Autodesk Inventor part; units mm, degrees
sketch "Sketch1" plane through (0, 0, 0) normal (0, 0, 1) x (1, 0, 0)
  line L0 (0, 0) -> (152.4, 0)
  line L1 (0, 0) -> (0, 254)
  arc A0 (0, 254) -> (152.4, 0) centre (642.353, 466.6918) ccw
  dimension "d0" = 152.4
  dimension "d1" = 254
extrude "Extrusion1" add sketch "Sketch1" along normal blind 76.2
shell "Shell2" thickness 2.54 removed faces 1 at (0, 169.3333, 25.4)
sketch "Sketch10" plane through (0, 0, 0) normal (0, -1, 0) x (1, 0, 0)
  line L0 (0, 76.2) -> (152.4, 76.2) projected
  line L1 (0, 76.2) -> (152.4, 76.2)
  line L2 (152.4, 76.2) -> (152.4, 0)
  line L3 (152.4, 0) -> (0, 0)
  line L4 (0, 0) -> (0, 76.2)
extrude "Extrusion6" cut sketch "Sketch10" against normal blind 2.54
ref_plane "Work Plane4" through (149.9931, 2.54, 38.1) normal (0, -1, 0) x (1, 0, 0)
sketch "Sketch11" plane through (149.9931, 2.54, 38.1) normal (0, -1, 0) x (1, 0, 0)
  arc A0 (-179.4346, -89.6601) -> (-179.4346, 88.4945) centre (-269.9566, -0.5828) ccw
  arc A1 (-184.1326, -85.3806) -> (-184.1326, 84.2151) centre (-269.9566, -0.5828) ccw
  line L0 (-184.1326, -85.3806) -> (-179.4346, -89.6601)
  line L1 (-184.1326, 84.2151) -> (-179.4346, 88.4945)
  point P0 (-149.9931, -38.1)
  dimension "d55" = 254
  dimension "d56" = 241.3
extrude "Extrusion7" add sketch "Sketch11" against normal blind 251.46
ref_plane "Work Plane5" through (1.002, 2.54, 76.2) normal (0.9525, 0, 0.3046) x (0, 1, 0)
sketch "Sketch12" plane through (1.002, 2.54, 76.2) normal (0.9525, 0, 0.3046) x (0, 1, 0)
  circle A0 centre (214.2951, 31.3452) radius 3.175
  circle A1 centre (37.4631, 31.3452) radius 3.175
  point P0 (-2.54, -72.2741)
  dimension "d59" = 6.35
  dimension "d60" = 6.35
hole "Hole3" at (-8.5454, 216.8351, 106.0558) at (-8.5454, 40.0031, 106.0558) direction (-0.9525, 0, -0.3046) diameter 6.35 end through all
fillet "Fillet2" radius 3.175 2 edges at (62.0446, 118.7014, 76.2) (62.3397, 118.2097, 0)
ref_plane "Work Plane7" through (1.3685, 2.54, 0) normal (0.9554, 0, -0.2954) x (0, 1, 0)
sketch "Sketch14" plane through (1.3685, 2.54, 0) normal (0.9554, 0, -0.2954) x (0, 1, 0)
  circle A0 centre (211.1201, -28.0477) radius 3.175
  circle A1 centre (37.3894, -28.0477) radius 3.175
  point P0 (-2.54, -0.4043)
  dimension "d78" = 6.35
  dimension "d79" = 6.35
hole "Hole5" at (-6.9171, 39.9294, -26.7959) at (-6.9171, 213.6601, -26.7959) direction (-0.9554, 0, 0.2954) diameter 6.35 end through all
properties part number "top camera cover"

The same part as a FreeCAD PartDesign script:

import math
import FreeCAD as App
import Part
import Sketcher

V = App.Vector
Q = App.Units.Quantity


def edges_at(feature, points):
    """Names of the edges that pass closest to the given points."""
    edges = feature.Shape.Edges
    near = lambda p: min(range(len(edges)), key=lambda i: edges[i].distToShape(Part.Vertex(*p))[0])
    return sorted({f"Edge{near(p) + 1}" for p in points})


def faces_at(feature, points):
    """Names of the faces that lie closest to the given points."""
    faces = feature.Shape.Faces
    near = lambda p: min(range(len(faces)), key=lambda i: faces[i].distToShape(Part.Vertex(*p))[0])
    return sorted({f"Face{near(p) + 1}" for p in points})


def add_polygon(sketch, points):
    """Adds a closed chain of lines whose ends are joined by coincident constraints."""
    first, n = sketch.GeometryCount, len(points)
    for a, b in zip(points, points[1:] + points[:1]):
        sketch.addGeometry(Part.LineSegment(App.Vector(*a, 0), App.Vector(*b, 0)), False)
    for i in range(n):
        sketch.addConstraint(Sketcher.Constraint("Coincident", first + i, 2, first + (i + 1) % n, 1))

doc = App.newDocument("Part")
params = doc.addObject("Spreadsheet::Sheet", "Params")
for row, (alias, value) in enumerate([
    ("sketch1_width", "6 in"),
    ("sketch1_height", "10 in"),
    ("pad1_length", "3 in"),
    ("thickness_wall", "0.1 in"),
    ("sketch2_width", "6 in"),
    ("sketch2_height", "3 in"),
    ("pocket1_length", "0.1 in"),
    ("sketch3_radius", "5 in"),
    ("sketch3_radius2", "4.75 in"),
    ("pad2_length", "9.9 in"),
    ("sketch4_diameter", "0.25 in"),
    ("hole_diameter", "0.25 in"),
    ("fillet_radius", "0.125 in"),
    ("sketch5_diameter", "0.25 in"),
    ("hole2_diameter", "0.25 in"),
], start=1):
    params.set(f"A{row}", alias)
    params.set(f"B{row}", "=" + value)
    params.setAlias(f"B{row}", alias)

body = doc.addObject("PartDesign::Body", "Body")

sketch1 = doc.addObject("Sketcher::SketchObject", "Sketch")
body.addObject(sketch1)
sketch1.AttachmentSupport = (doc.XY_Plane, [""])
sketch1.MapMode = "FlatFace"
sketch1.addGeometry([
    Part.LineSegment(V(0, 254, 0), V(0, 0, 0)),
    Part.LineSegment(V(0, 0, 0), V(152, 0, 0)),
    Part.ArcOfCircle(Part.Circle(V(642, 467, 0), V(0, 0, 1), 677), math.radians(-162), math.radians(-136)),
], False)
sketch1.addConstraint([
    Sketcher.Constraint("Coincident", 0, 2, 1, 1),
    Sketcher.Constraint("Coincident", 1, 2, 2, 2),
    Sketcher.Constraint("Coincident", 2, 1, 0, 1),
    Sketcher.Constraint("Vertical", 0),
    Sketcher.Constraint("Horizontal", 1),
    Sketcher.Constraint("Coincident", 0, 2, -1, 1),
    Sketcher.Constraint("DistanceX", 1, 1, 1, 2, Q("6 in")),
    Sketcher.Constraint("DistanceY", 0, 2, 0, 1, Q("10 in")),
    Sketcher.Constraint("Radius", 2, Q("676.65 mm")),
])
sketch1.setExpression("Constraints[6]", "Params.sketch1_width")
sketch1.setExpression("Constraints[7]", "Params.sketch1_height")
pad1 = doc.addObject("PartDesign::Pad", "Pad")
body.addObject(pad1)
pad1.Profile = sketch1
pad1.setExpression("Length", "Params.pad1_length")
doc.recompute()

thickness = doc.addObject("PartDesign::Thickness", "Thickness")
body.addObject(thickness)
thickness.Base = (pad1, faces_at(pad1, [(0, 169.333, 25.4)]))
thickness.setExpression("Value", "Params.thickness_wall")
thickness.Reversed = True
thickness.Join = "Intersection"

sketch2 = doc.addObject("Sketcher::SketchObject", "Sketch001")
body.addObject(sketch2)
sketch2.AttachmentSupport = (doc.XZ_Plane, [""])
sketch2.MapMode = "FlatFace"
add_polygon(sketch2, [(152, 76), (0, 76), (0, 0), (152, 0)])
sketch2.addConstraint([
    Sketcher.Constraint("Horizontal", 0),
    Sketcher.Constraint("Vertical", 1),
    Sketcher.Constraint("Horizontal", 2),
    Sketcher.Constraint("Vertical", 3),
    Sketcher.Constraint("Coincident", 1, 2, -1, 1),
    Sketcher.Constraint("DistanceX", 0, 2, 0, 1, Q("6 in")),
    Sketcher.Constraint("DistanceY", 1, 2, 1, 1, Q("3 in")),
])
sketch2.setExpression("Constraints[9]", "Params.sketch2_width")
sketch2.setExpression("Constraints[10]", "Params.sketch2_height")
pocket1 = doc.addObject("PartDesign::Pocket", "Pocket")
body.addObject(pocket1)
pocket1.Profile = sketch2
pocket1.setExpression("Length", "Params.pocket1_length")

sketch3 = doc.addObject("Sketcher::SketchObject", "Sketch002")
body.addObject(sketch3)
sketch3.AttachmentSupport = (doc.XZ_Plane, [""])
sketch3.MapMode = "FlatFace"
sketch3.AttachmentOffset = App.Placement(V(0, 0, -0.1 * 25.4), App.Rotation())
sketch3.addGeometry([
    Part.LineSegment(V(-34, -47, 0), V(-29, -52, 0)),
    Part.ArcOfCircle(Part.Circle(V(-120, 38, 0), V(0, 0, 1), 127), math.radians(-45), math.radians(45)),
    Part.LineSegment(V(-29, 127, 0), V(-34, 122, 0)),
    Part.ArcOfCircle(Part.Circle(V(-120, 38, 0), V(0, 0, 1), 121), math.radians(-45), math.radians(45)),
], False)
sketch3.addConstraint([
    Sketcher.Constraint("Coincident", 0, 2, 1, 1),
    Sketcher.Constraint("Coincident", 1, 2, 2, 1),
    Sketcher.Constraint("Coincident", 2, 2, 3, 2),
    Sketcher.Constraint("Coincident", 3, 1, 0, 1),
    Sketcher.Constraint("Coincident", 3, 3, 1, 3),
    Sketcher.Constraint("Vertical", 0, 2, 1, 2),
    Sketcher.Constraint("Vertical", 2, 2, 3, 1),
    Sketcher.Constraint("Radius", 1, Q("5 in")),
    Sketcher.Constraint("Radius", 3, Q("4.75 in")),
    Sketcher.Constraint("Angle", 0, Q("-42.331 deg")),
    Sketcher.Constraint("DistanceY", 3, 1, 2, 2, Q("6.677 in")),
    Sketcher.Constraint("DistanceX", 1, 3, -1, 1, Q("119.9635 mm")),
    Sketcher.Constraint("DistanceY", -1, 1, 1, 3, Q("37.5172 mm")),
])
sketch3.setExpression("Constraints[7]", "Params.sketch3_radius")
sketch3.setExpression("Constraints[8]", "Params.sketch3_radius2")
pad2 = doc.addObject("PartDesign::Pad", "Pad001")
body.addObject(pad2)
pad2.Profile = sketch3
pad2.setExpression("Length", "Params.pad2_length")
pad2.Reversed = True

sketch4 = doc.addObject("Sketcher::SketchObject", "Sketch003")
body.addObject(sketch4)
sketch4.Placement = App.Placement(V(23.0164, 0, 7.360415), App.Rotation(V(0.304594303, 0, -0.952482184), V(0, 1, 0), V(0.952482184, 0, 0.304594303), "ZXY"))
sketch4.addGeometry([
    Part.Circle(V(-103.6, 216.8, 0), V(0, 0, 1), 3.2),
    Part.Circle(V(-103.6, 40, 0), V(0, 0, 1), 3.2),
], False)
sketch4.addConstraint([
    Sketcher.Constraint("Equal", 0, 1),
    Sketcher.Constraint("Vertical", 0, 3, 1, 3),
    Sketcher.Constraint("Diameter", 0, Q("0.25 in")),
    Sketcher.Constraint("DistanceX", 0, 3, -1, 1, Q("4.0795 in")),
    Sketcher.Constraint("DistanceY", 1, 3, 0, 3, Q("6.9619 in")),
    Sketcher.Constraint("DistanceY", -1, 1, 0, 3, Q("8.536811 in")),
])
sketch4.setExpression("Constraints[2]", "Params.sketch4_diameter")
doc.recompute()
hole = doc.addObject("PartDesign::Hole", "Hole")
body.addObject(hole)
hole.Profile = sketch4
hole.ThreadType = "None"
hole.setExpression("Diameter", "Params.hole_diameter")
hole.DepthType = "ThroughAll"
doc.recompute()

fillet = doc.addObject("PartDesign::Fillet", "Fillet")
body.addObject(fillet)
fillet.Base = (hole, edges_at(hole, [(62.045, 118.701, 76.2), (62.34, 118.21, 0)]))
fillet.setExpression("Radius", "Params.fillet_radius")

sketch5 = doc.addObject("Sketcher::SketchObject", "Sketch004")
body.addObject(sketch5)
sketch5.Placement = App.Placement(V(1.24856, 0, -0.386042), App.Rotation(V(-0.295392568, 0, -0.955375963), V(0, 1, 0), V(0.955375963, 0, -0.295392568), "ZXY"))
sketch5.addGeometry([
    Part.Circle(V(27.6, 39.9, 0), V(0, 0, 1), 3.2),
    Part.Circle(V(27.6, 213.7, 0), V(0, 0, 1), 3.2),
], False)
sketch5.addConstraint([
    Sketcher.Constraint("Equal", 0, 1),
    Sketcher.Constraint("Vertical", 0, 3, 1, 3),
    Sketcher.Constraint("Diameter", 0, Q("0.25 in")),
    Sketcher.Constraint("DistanceY", 0, 3, 1, 3, Q("6.8398 in")),
    Sketcher.Constraint("DistanceX", -1, 1, 0, 3, Q("27.6434 mm")),
    Sketcher.Constraint("DistanceY", -1, 1, 0, 3, Q("39.9294 mm")),
])
sketch5.setExpression("Constraints[2]", "Params.sketch5_diameter")
doc.recompute()
hole2 = doc.addObject("PartDesign::Hole", "Hole001")
body.addObject(hole2)
hole2.Profile = sketch5
hole2.ThreadType = "None"
hole2.setExpression("Diameter", "Params.hole2_diameter")
hole2.DepthType = "ThroughAll"

doc.recompute()
